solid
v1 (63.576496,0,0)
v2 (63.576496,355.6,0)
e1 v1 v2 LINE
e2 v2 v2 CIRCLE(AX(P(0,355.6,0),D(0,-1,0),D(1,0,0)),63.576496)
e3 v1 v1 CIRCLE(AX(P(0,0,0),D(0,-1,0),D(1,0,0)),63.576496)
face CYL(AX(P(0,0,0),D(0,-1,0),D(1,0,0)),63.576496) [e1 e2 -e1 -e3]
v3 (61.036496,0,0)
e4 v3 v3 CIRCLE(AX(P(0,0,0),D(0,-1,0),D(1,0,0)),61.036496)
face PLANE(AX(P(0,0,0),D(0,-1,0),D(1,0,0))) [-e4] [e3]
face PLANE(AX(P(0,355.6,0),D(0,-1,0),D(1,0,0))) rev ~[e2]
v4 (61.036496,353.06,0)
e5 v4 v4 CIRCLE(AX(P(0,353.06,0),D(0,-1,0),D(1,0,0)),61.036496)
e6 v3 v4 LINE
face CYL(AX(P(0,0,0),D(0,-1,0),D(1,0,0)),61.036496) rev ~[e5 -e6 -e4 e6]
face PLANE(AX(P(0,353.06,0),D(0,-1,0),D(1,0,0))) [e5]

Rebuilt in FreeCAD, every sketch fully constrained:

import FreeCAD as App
import Part
import Sketcher
from FreeCAD import Vector
Q = App.Units.Quantity


def faces_at(feature, points):
    """Names of the faces that lie closest to the given points."""
    faces = feature.Shape.Faces
    near = lambda p: min(range(len(faces)), key=lambda i: faces[i].distToShape(Part.Vertex(*p))[0])
    return sorted({f"Face{near(p) + 1}" for p in points})

doc = App.newDocument("Part")
body = doc.addObject("PartDesign::Body", "Body")

# Sketch on XZ plane
sketch1 = body.newObject("Sketcher::SketchObject", "Sketch")
sketch1.AttachmentSupport = (doc.getObject("XZ_Plane"), [""])
sketch1.MapMode = "FlatFace"
sketch1.addGeometry(Part.Circle(Vector(0, 0, 0), Vector(0, 0, 1), 64), False)
sketch1.addConstraint([
    Sketcher.Constraint("Coincident", 0, 3, -1, 1),
    Sketcher.Constraint("Diameter", 0, 127.152992),
])
pad1 = body.newObject("PartDesign::Pad", "Pad")
pad1.Profile = sketch1
pad1.Length = Q("14 in")
pad1.Reversed = True
doc.recompute()

thickness = body.newObject("PartDesign::Thickness", "Thickness")
thickness.Base = (pad1, faces_at(pad1, [(0, 0, 0)]))
thickness.Value = Q("0.1 in")
thickness.Reversed = True
thickness.Join = "Arc"

doc.recompute()
